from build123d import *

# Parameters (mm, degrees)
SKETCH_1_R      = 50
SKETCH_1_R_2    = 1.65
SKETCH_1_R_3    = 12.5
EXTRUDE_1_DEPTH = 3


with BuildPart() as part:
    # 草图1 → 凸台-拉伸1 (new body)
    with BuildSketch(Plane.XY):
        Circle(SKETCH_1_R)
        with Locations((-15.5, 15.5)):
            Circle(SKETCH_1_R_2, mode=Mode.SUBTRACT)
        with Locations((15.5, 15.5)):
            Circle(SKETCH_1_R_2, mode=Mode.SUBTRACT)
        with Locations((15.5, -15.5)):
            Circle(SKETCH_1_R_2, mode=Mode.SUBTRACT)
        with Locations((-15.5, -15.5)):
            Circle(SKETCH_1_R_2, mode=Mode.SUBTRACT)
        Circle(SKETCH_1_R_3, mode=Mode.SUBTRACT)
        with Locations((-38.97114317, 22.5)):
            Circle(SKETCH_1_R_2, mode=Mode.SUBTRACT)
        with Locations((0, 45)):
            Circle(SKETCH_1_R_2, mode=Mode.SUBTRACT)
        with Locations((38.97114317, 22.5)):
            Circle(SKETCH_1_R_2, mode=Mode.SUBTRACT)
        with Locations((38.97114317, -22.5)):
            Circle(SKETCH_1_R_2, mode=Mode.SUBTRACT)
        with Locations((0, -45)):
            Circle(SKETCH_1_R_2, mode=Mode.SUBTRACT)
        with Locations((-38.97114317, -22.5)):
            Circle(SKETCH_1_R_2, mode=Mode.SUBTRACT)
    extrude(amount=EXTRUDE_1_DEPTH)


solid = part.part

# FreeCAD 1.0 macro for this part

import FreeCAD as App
import Part
import Sketcher
from FreeCAD import Vector
Q = App.Units.Quantity

doc = App.newDocument("Part")
body = doc.addObject("PartDesign::Body", "Body")

# Sketch on XY plane
sketch1 = doc.addObject("Sketcher::SketchObject", "Sketch")
body.addObject(sketch1)
sketch1.AttachmentSupport = (doc.XY_Plane, [""])
sketch1.MapMode = "FlatFace"
sketch1.addGeometry(Part.Circle(Vector(0, 0, 0), Vector(0, 0, 1), 50), False)
sketch1.addGeometry(Part.Circle(Vector(-39, -22.5, 0), Vector(0, 0, 1), 1.6), False)
sketch1.addGeometry(Part.Circle(Vector(-15.5, -15.5, 0), Vector(0, 0, 1), 1.6), False)
sketch1.addGeometry(Part.Circle(Vector(0, -45, 0), Vector(0, 0, 1), 1.6), False)
sketch1.addGeometry(Part.Circle(Vector(15.5, -15.5, 0), Vector(0, 0, 1), 1.6), False)
sketch1.addGeometry(Part.Circle(Vector(0, 0, 0), Vector(0, 0, 1), 12.5), False)
sketch1.addGeometry(Part.Circle(Vector(39, -22.5, 0), Vector(0, 0, 1), 1.6), False)
sketch1.addGeometry(Part.Circle(Vector(-39, 22.5, 0), Vector(0, 0, 1), 1.6), False)
sketch1.addGeometry(Part.Circle(Vector(-15.5, 15.5, 0), Vector(0, 0, 1), 1.6), False)
sketch1.addGeometry(Part.Circle(Vector(15.5, 15.5, 0), Vector(0, 0, 1), 1.6), False)
sketch1.addGeometry(Part.Circle(Vector(39, 22.5, 0), Vector(0, 0, 1), 1.6), False)
sketch1.addGeometry(Part.Circle(Vector(0, 45, 0), Vector(0, 0, 1), 1.6), False)
sketch1.addConstraint(Sketcher.Constraint("Coincident", 0, 3, -1, 1))
sketch1.addConstraint(Sketcher.Constraint("Coincident", 5, 3, -1, 1))
sketch1.addConstraint(Sketcher.Constraint("Equal", 1, 2))
sketch1.addConstraint(Sketcher.Constraint("Equal", 2, 3))
sketch1.addConstraint(Sketcher.Constraint("Equal", 3, 4))
sketch1.addConstraint(Sketcher.Constraint("Equal", 4, 6))
sketch1.addConstraint(Sketcher.Constraint("Equal", 6, 7))
sketch1.addConstraint(Sketcher.Constraint("Equal", 7, 8))
sketch1.addConstraint(Sketcher.Constraint("Equal", 8, 9))
sketch1.addConstraint(Sketcher.Constraint("Equal", 9, 10))
sketch1.addConstraint(Sketcher.Constraint("Equal", 10, 11))
sketch1.addConstraint(Sketcher.Constraint("Symmetric", 6, 3, 7, 3, -1, 1))
sketch1.addConstraint(Sketcher.Constraint("Symmetric", 4, 3, 8, 3, -1, 1))
sketch1.addConstraint(Sketcher.Constraint("Symmetric", 2, 3, 9, 3, -1, 1))
sketch1.addConstraint(Sketcher.Constraint("Symmetric", 1, 3, 10, 3, -1, 1))
sketch1.addConstraint(Sketcher.Constraint("Symmetric", 3, 3, 11, 3, -1, 1))
sketch1.addConstraint(Sketcher.Constraint("Symmetric", 2, 3, 4, 3, -2))
sketch1.addConstraint(Sketcher.Constraint("Symmetric", 1, 3, 6, 3, -2))
sketch1.addConstraint(Sketcher.Constraint("PointOnObject", 3, 3, -2))
sketch1.addConstraint(Sketcher.Constraint("Diameter", 0, Q("100 mm")))
sketch1.addConstraint(Sketcher.Constraint("Diameter", 5, Q("25 mm")))
sketch1.addConstraint(Sketcher.Constraint("Diameter", 1, Q("3.3 mm")))
sketch1.addConstraint(Sketcher.Constraint("DistanceY", 3, 3, -1, 1, Q("45 mm")))
sketch1.addConstraint(Sketcher.Constraint("DistanceY", 1, 3, 2, 3, Q("7 mm")))
sketch1.addConstraint(Sketcher.Constraint("DistanceX", 2, 3, 4, 3, Q("31 mm")))
sketch1.addConstraint(Sketcher.Constraint("DistanceY", 2, 3, 7, 3, Q("38 mm")))
sketch1.addConstraint(Sketcher.Constraint("DistanceX", 1, 3, -1, 1, Q("38.971143 mm")))
pad1 = doc.addObject("PartDesign::Pad", "Pad")
body.addObject(pad1)
pad1.Profile = sketch1
pad1.Length = 3

doc.recompute()
